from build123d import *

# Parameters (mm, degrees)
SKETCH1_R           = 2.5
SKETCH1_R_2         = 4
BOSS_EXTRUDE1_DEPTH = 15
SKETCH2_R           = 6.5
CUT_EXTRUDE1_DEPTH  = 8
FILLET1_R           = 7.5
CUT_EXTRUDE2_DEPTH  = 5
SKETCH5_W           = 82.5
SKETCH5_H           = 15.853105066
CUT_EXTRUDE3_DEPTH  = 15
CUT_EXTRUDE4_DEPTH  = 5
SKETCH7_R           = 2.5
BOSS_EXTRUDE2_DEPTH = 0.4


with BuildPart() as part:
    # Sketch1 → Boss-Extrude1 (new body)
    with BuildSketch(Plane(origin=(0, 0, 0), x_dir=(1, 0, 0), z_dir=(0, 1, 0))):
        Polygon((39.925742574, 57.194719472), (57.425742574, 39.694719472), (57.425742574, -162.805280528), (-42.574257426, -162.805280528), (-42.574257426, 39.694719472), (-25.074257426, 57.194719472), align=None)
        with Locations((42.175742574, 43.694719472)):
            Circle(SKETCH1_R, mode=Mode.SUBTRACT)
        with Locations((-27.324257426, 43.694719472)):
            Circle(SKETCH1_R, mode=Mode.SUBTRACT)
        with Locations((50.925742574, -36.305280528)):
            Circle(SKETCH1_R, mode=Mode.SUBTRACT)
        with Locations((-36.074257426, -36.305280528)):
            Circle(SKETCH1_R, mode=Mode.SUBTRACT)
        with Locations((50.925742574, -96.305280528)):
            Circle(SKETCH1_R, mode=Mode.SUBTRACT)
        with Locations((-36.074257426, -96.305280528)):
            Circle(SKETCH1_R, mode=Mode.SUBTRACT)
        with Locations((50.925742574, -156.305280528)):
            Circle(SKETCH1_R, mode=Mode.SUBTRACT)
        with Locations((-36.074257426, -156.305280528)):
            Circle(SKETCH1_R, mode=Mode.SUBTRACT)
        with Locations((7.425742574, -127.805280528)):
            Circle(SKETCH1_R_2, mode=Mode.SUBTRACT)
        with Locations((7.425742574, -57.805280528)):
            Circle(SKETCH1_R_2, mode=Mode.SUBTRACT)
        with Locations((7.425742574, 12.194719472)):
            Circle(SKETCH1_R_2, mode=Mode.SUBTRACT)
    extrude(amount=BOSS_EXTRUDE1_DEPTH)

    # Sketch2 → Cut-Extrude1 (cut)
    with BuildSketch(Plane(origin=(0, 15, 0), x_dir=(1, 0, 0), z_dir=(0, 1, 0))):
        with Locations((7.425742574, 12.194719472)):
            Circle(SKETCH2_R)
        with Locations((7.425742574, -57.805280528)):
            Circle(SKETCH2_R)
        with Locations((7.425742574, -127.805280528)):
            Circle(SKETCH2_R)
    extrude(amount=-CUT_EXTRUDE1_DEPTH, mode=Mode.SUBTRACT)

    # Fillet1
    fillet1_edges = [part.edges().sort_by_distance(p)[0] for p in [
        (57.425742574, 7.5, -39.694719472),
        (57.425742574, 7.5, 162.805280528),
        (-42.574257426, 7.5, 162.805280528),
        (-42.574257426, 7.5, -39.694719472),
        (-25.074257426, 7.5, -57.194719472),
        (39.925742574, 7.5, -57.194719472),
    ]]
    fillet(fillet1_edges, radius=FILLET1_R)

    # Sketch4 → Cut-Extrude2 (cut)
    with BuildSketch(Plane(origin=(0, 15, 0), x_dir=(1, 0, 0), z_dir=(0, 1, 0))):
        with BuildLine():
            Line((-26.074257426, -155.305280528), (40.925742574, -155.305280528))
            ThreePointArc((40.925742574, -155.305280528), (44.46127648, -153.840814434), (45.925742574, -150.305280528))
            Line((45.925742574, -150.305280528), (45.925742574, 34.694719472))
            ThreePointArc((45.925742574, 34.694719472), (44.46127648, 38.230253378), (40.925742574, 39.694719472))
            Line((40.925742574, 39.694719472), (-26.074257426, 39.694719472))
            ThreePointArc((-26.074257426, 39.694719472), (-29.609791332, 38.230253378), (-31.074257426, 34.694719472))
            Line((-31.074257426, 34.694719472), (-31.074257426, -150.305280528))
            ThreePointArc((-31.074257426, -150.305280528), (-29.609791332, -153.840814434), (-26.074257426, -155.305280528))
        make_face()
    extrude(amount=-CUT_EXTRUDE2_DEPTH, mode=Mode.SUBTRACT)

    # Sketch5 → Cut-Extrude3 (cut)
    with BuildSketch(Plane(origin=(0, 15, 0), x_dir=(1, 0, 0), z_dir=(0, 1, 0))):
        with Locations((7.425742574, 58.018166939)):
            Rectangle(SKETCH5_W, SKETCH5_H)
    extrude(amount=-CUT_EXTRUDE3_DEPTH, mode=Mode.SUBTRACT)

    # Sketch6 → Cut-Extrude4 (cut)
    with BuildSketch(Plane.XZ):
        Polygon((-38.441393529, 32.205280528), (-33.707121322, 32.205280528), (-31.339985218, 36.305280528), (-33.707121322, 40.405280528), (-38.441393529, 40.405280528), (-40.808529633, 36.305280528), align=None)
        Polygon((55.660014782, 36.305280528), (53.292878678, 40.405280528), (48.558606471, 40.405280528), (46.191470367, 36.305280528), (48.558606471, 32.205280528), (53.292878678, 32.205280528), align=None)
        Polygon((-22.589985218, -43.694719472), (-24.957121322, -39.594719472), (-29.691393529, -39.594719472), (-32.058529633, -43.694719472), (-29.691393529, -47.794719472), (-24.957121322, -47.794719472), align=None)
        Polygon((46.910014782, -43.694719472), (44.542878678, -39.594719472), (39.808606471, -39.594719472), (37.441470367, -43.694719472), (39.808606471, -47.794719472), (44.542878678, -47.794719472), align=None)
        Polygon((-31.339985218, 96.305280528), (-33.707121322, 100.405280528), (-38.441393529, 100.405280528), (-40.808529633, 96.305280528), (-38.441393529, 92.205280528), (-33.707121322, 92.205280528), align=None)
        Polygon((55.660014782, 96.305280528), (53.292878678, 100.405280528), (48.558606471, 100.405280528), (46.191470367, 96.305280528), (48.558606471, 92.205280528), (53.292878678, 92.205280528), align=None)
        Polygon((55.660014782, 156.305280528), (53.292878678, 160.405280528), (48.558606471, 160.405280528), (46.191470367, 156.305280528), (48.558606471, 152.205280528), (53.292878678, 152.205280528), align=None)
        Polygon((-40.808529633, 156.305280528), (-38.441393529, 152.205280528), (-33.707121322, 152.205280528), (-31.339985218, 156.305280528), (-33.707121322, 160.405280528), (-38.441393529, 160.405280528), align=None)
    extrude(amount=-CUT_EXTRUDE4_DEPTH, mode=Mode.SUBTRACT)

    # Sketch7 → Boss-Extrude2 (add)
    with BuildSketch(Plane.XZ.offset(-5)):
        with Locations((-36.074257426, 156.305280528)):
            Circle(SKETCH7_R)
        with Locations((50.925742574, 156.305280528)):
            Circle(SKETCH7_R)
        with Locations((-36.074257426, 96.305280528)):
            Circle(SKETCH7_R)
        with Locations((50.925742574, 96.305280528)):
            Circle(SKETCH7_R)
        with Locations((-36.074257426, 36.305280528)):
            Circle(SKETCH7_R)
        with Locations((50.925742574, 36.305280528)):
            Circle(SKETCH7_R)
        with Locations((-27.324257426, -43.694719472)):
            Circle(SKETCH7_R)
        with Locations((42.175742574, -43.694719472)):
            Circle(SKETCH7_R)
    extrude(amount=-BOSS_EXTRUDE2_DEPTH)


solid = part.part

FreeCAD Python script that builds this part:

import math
import FreeCAD as App
import Part
import Sketcher

V = App.Vector
Q = App.Units.Quantity


def edges_at(feature, points):
    """Names of the edges that pass closest to the given points."""
    edges = feature.Shape.Edges
    near = lambda p: min(range(len(edges)), key=lambda i: edges[i].distToShape(Part.Vertex(*p))[0])
    return sorted({f"Edge{near(p) + 1}" for p in points})

doc = App.newDocument("Part")
body = doc.addObject("PartDesign::Body", "Body")

# Sketch on XZ plane
sketch1 = body.newObject("Sketcher::SketchObject", "Sketch")
sketch1.AttachmentSupport = (doc.getObject("XZ_Plane"), [""])
sketch1.MapMode = "FlatFace"
sketch1.addGeometry([
    Part.LineSegment(V(57.4, -39.7, 0), V(39.9, -57.2, 0)),  # 0
    Part.LineSegment(V(39.9, -57.2, 0), V(-25.1, -57.2, 0)),  # 1
    Part.LineSegment(V(-25.1, -57.2, 0), V(-42.6, -39.7, 0)),  # 2
    Part.LineSegment(V(-42.6, -39.7, 0), V(-42.6, 162.8, 0)),  # 3
    Part.LineSegment(V(-42.6, 162.8, 0), V(57.4, 162.8, 0)),  # 4
    Part.LineSegment(V(57.4, 162.8, 0), V(57.4, -39.7, 0)),  # 5
    Part.Circle(V(50.9, 156.3, 0), V(0, 0, 1), 2.5),  # 6
    Part.Circle(V(7.4, 127.8, 0), V(0, 0, 1), 4),  # 7
    Part.Circle(V(50.9, 96.3, 0), V(0, 0, 1), 2.5),  # 8
    Part.Circle(V(7.4, 57.8, 0), V(0, 0, 1), 4),  # 9
    Part.Circle(V(-36.1, 156.3, 0), V(0, 0, 1), 2.5),  # 10
    Part.Circle(V(-36.1, 96.3, 0), V(0, 0, 1), 2.5),  # 11
    Part.Circle(V(50.9, 36.3, 0), V(0, 0, 1), 2.5),  # 12
    Part.Circle(V(42.2, -43.7, 0), V(0, 0, 1), 2.5),  # 13
    Part.Circle(V(7.4, -12.2, 0), V(0, 0, 1), 4),  # 14
    Part.Circle(V(-36.1, 36.3, 0), V(0, 0, 1), 2.5),  # 15
    Part.Circle(V(-27.3, -43.7, 0), V(0, 0, 1), 2.5),  # 16
], False)
sketch1.addConstraint([
    Sketcher.Constraint("Coincident", 0, 2, 1, 1),
    Sketcher.Constraint("Coincident", 1, 2, 2, 1),
    Sketcher.Constraint("Coincident", 2, 2, 3, 1),
    Sketcher.Constraint("Coincident", 3, 2, 4, 1),
    Sketcher.Constraint("Coincident", 4, 2, 5, 1),
    Sketcher.Constraint("Coincident", 5, 2, 0, 1),
    Sketcher.Constraint("Horizontal", 1),
    Sketcher.Constraint("Vertical", 3),
    Sketcher.Constraint("Horizontal", 4),
    Sketcher.Constraint("Vertical", 5),
    Sketcher.Constraint("Equal", 6, 8),
    Sketcher.Constraint("Equal", 7, 9),
    Sketcher.Constraint("Equal", 8, 10),
    Sketcher.Constraint("Equal", 10, 11),
    Sketcher.Constraint("Equal", 11, 12),
    Sketcher.Constraint("Equal", 12, 13),
    Sketcher.Constraint("Equal", 9, 14),
    Sketcher.Constraint("Equal", 13, 15),
    Sketcher.Constraint("Equal", 15, 16),
    Sketcher.Constraint("Perpendicular", 0, 2),
    Sketcher.Constraint("Horizontal", 6, 3, 10, 3),
    Sketcher.Constraint("Horizontal", 8, 3, 11, 3),
    Sketcher.Constraint("Horizontal", 12, 3, 15, 3),
    Sketcher.Constraint("Horizontal", 13, 3, 16, 3),
    Sketcher.Constraint("Horizontal", 2, 2, 5, 2),
    Sketcher.Constraint("Vertical", 6, 3, 8, 3),
    Sketcher.Constraint("Vertical", 7, 3, 9, 3),
    Sketcher.Constraint("Vertical", 10, 3, 11, 3),
    Sketcher.Constraint("Vertical", 8, 3, 12, 3),
    Sketcher.Constraint("Vertical", 9, 3, 14, 3),
    Sketcher.Constraint("Vertical", 11, 3, 15, 3),
    Sketcher.Constraint("Equal", 0, 2),
    Sketcher.Constraint("Diameter", 6, 5.0),
    Sketcher.Constraint("Diameter", 7, 8.0),
    Sketcher.Constraint("DistanceX", 1, 2, 1, 1, 65.0),
    Sketcher.Constraint("DistanceX", 4, 1, 4, 2, 100.0),
    Sketcher.Constraint("DistanceY", 3, 1, 3, 2, 202.5),
    Sketcher.Constraint("DistanceY", 8, 3, 6, 3, 60.0),
    Sketcher.Constraint("DistanceY", 9, 3, 7, 3, 70.0),
    Sketcher.Constraint("DistanceX", 10, 3, 6, 3, 87.0),
    Sketcher.Constraint("DistanceY", 12, 3, 8, 3, 60.0),
    Sketcher.Constraint("DistanceY", 13, 3, 12, 3, 80.0),
    Sketcher.Constraint("DistanceY", 14, 3, 9, 3, 70.0),
    Sketcher.Constraint("DistanceY", 0, 2, 14, 3, 45.0),
    Sketcher.Constraint("DistanceX", 0, 2, 12, 3, 11.0),
    Sketcher.Constraint("DistanceY", 16, 3, 2, 2, 4.0),
    Sketcher.Constraint("DistanceX", 2, 2, 14, 3, 50.0),
    Sketcher.Constraint("DistanceX", 16, 3, 13, 3, 69.5),
    Sketcher.Constraint("DistanceX", 13, 3, 12, 3, 8.75),
    Sketcher.Constraint("DistanceY", -1, 1, 6, 3, 156.305281),
    Sketcher.Constraint("DistanceX", -1, 1, 6, 3, 50.925743),
])
pad1 = body.newObject("PartDesign::Pad", "Pad")
pad1.Profile = sketch1
pad1.Length = 15
pad1.Reversed = True

# Sketch on XZ plane
sketch2 = body.newObject("Sketcher::SketchObject", "Sketch001")
sketch2.AttachmentSupport = (doc.getObject("XZ_Plane"), [""])
sketch2.MapMode = "FlatFace"
sketch2.AttachmentOffset = App.Placement(V(0, 0, -15), App.Rotation())
sketch2.addGeometry([
    Part.Circle(V(7, -12, 0), V(0, 0, 1), 6),
    Part.Circle(V(7, 58, 0), V(0, 0, 1), 6),
    Part.Circle(V(7, 128, 0), V(0, 0, 1), 6),
], False)
sketch2.addConstraint([
    Sketcher.Constraint("Equal", 0, 1),
    Sketcher.Constraint("Equal", 1, 2),
    Sketcher.Constraint("Vertical", 0, 3, 1, 3),
    Sketcher.Constraint("Vertical", 1, 3, 2, 3),
    Sketcher.Constraint("Diameter", 0, 13.0),
    Sketcher.Constraint("DistanceY", 0, 3, 1, 3, 70.0),
    Sketcher.Constraint("DistanceY", 1, 3, 2, 3, 70.0),
    Sketcher.Constraint("DistanceY", 0, 3, -1, 1, 12.194719),
    Sketcher.Constraint("DistanceX", -1, 1, 0, 3, 7.425743),
])
pocket1 = body.newObject("PartDesign::Pocket", "Pocket")
pocket1.Profile = sketch2
pocket1.Length = 8
pocket1.Reversed = True
doc.recompute()

fillet = body.newObject("PartDesign::Fillet", "Fillet")
fillet.Base = (pocket1, edges_at(pocket1, [
    (57.426, 7.5, -39.695),
    (57.426, 7.5, 162.805),
    (-42.574, 7.5, 162.805),
    (-42.574, 7.5, -39.695),
    (-25.074, 7.5, -57.195),
    (39.926, 7.5, -57.195),
]))
fillet.Radius = 7.5

# Sketch on XZ plane
sketch3 = body.newObject("Sketcher::SketchObject", "Sketch002")
sketch3.AttachmentSupport = (doc.getObject("XZ_Plane"), [""])
sketch3.MapMode = "FlatFace"
sketch3.AttachmentOffset = App.Placement(V(0, 0, -15), App.Rotation())
sketch3.addGeometry([
    Part.LineSegment(V(-26, 155, 0), V(41, 155, 0)),  # 0
    Part.ArcOfCircle(Part.Circle(V(41, 150, 0), V(0, 0, 1), 5), math.radians(0), math.radians(90)),  # 1
    Part.LineSegment(V(46, 150, 0), V(46, -35, 0)),  # 2
    Part.ArcOfCircle(Part.Circle(V(41, -35, 0), V(0, 0, 1), 5), math.radians(-90), math.radians(0)),  # 3
    Part.LineSegment(V(41, -40, 0), V(-26, -40, 0)),  # 4
    Part.ArcOfCircle(Part.Circle(V(-26, -35, 0), V(0, 0, 1), 5), math.radians(180), math.radians(270)),  # 5
    Part.LineSegment(V(-31, -35, 0), V(-31, 150, 0)),  # 6
    Part.ArcOfCircle(Part.Circle(V(-26, 150, 0), V(0, 0, 1), 5), math.radians(90), math.radians(180)),  # 7
], False)
sketch3.addConstraint([
    Sketcher.Constraint("Tangent", 0, 2, 1, 2),
    Sketcher.Constraint("Tangent", 1, 1, 2, 1),
    Sketcher.Constraint("Tangent", 2, 2, 3, 2),
    Sketcher.Constraint("Tangent", 3, 1, 4, 1),
    Sketcher.Constraint("Tangent", 4, 2, 5, 2),
    Sketcher.Constraint("Tangent", 5, 1, 6, 1),
    Sketcher.Constraint("Tangent", 6, 2, 7, 2),
    Sketcher.Constraint("Tangent", 7, 1, 0, 1),
    Sketcher.Constraint("Horizontal", 0),
    Sketcher.Constraint("Vertical", 2),
    Sketcher.Constraint("Horizontal", 4),
    Sketcher.Constraint("Vertical", 6),
    Sketcher.Constraint("Equal", 1, 3),
    Sketcher.Constraint("Equal", 3, 5),
    Sketcher.Constraint("Equal", 5, 7),
    Sketcher.Constraint("Radius", 1, 5.0),
    Sketcher.Constraint("DistanceX", 0, 1, 0, 2, 67.0),
    Sketcher.Constraint("DistanceY", 2, 2, 2, 1, 185.0),
    Sketcher.Constraint("DistanceY", -1, 1, 1, 3, 150.305281),
    Sketcher.Constraint("DistanceX", -1, 1, 1, 3, 40.925743),
])
pocket2 = body.newObject("PartDesign::Pocket", "Pocket001")
pocket2.Profile = sketch3
pocket2.Length = 5
pocket2.Reversed = True

# Sketch on XZ plane
sketch4 = body.newObject("Sketcher::SketchObject", "Sketch003")
sketch4.AttachmentSupport = (doc.getObject("XZ_Plane"), [""])
sketch4.MapMode = "FlatFace"
sketch4.AttachmentOffset = App.Placement(V(0, 0, -15), App.Rotation())
sketch4.addGeometry([
    Part.LineSegment(V(-34, -66, 0), V(-34, -50, 0)),
    Part.LineSegment(V(-34, -50, 0), V(49, -50, 0)),
    Part.LineSegment(V(49, -50, 0), V(49, -66, 0)),
    Part.LineSegment(V(49, -66, 0), V(-34, -66, 0)),
], False)
sketch4.addConstraint([
    Sketcher.Constraint("Coincident", 0, 2, 1, 1),
    Sketcher.Constraint("Coincident", 1, 2, 2, 1),
    Sketcher.Constraint("Coincident", 2, 2, 3, 1),
    Sketcher.Constraint("Coincident", 3, 2, 0, 1),
    Sketcher.Constraint("Vertical", 0),
    Sketcher.Constraint("Horizontal", 1),
    Sketcher.Constraint("Vertical", 2),
    Sketcher.Constraint("Horizontal", 3),
    Sketcher.Constraint("DistanceX", 1, 1, 1, 2, 82.5),
    Sketcher.Constraint("DistanceY", 0, 1, 0, 2, 15.853105),
    Sketcher.Constraint("DistanceY", 2, 2, -1, 1, 65.944719),
    Sketcher.Constraint("DistanceX", 0, 2, -1, 1, 33.824257),
])
pocket3 = body.newObject("PartDesign::Pocket", "Pocket002")
pocket3.Profile = sketch4
pocket3.Length = 15
pocket3.Reversed = True

# Sketch on XZ plane
sketch5 = body.newObject("Sketcher::SketchObject", "Sketch004")
sketch5.AttachmentSupport = (doc.getObject("XZ_Plane"), [""])
sketch5.MapMode = "FlatFace"
sketch5.addGeometry([
    Part.LineSegment(V(-38.4, 32.2, 0), V(-33.7, 32.2, 0)),  # 0
    Part.LineSegment(V(-33.7, 32.2, 0), V(-31.3, 36.3, 0)),  # 1
    Part.LineSegment(V(-31.3, 36.3, 0), V(-33.7, 40.4, 0)),  # 2
    Part.LineSegment(V(-33.7, 40.4, 0), V(-38.4, 40.4, 0)),  # 3
    Part.LineSegment(V(-38.4, 40.4, 0), V(-40.8, 36.3, 0)),  # 4
    Part.LineSegment(V(-40.8, 36.3, 0), V(-38.4, 32.2, 0)),  # 5
    Part.LineSegment(V(55.7, 36.3, 0), V(53.3, 40.4, 0)),  # 6
    Part.LineSegment(V(53.3, 40.4, 0), V(48.6, 40.4, 0)),  # 7
    Part.LineSegment(V(48.6, 40.4, 0), V(46.2, 36.3, 0)),  # 8
    Part.LineSegment(V(46.2, 36.3, 0), V(48.6, 32.2, 0)),  # 9
    Part.LineSegment(V(48.6, 32.2, 0), V(53.3, 32.2, 0)),  # 10
    Part.LineSegment(V(53.3, 32.2, 0), V(55.7, 36.3, 0)),  # 11
    Part.LineSegment(V(-22.6, -43.7, 0), V(-25, -39.6, 0)),  # 12
    Part.LineSegment(V(-25, -39.6, 0), V(-29.7, -39.6, 0)),  # 13
    Part.LineSegment(V(-29.7, -39.6, 0), V(-32.1, -43.7, 0)),  # 14
    Part.LineSegment(V(-32.1, -43.7, 0), V(-29.7, -47.8, 0)),  # 15
    Part.LineSegment(V(-29.7, -47.8, 0), V(-25, -47.8, 0)),  # 16
    Part.LineSegment(V(-25, -47.8, 0), V(-22.6, -43.7, 0)),  # 17
    Part.LineSegment(V(46.9, -43.7, 0), V(44.5, -39.6, 0)),  # 18
    Part.LineSegment(V(44.5, -39.6, 0), V(39.8, -39.6, 0)),  # 19
    Part.LineSegment(V(39.8, -39.6, 0), V(37.4, -43.7, 0)),  # 20
    Part.LineSegment(V(37.4, -43.7, 0), V(39.8, -47.8, 0)),  # 21
    Part.LineSegment(V(39.8, -47.8, 0), V(44.5, -47.8, 0)),  # 22
    Part.LineSegment(V(44.5, -47.8, 0), V(46.9, -43.7, 0)),  # 23
    Part.LineSegment(V(-31.3, 96.3, 0), V(-33.7, 100.4, 0)),  # 24
    Part.LineSegment(V(-33.7, 100.4, 0), V(-38.4, 100.4, 0)),  # 25
    Part.LineSegment(V(-38.4, 100.4, 0), V(-40.8, 96.3, 0)),  # 26
    Part.LineSegment(V(-40.8, 96.3, 0), V(-38.4, 92.2, 0)),  # 27
    Part.LineSegment(V(-38.4, 92.2, 0), V(-33.7, 92.2, 0)),  # 28
    Part.LineSegment(V(-33.7, 92.2, 0), V(-31.3, 96.3, 0)),  # 29
    Part.LineSegment(V(55.7, 96.3, 0), V(53.3, 100.4, 0)),  # 30
    Part.LineSegment(V(53.3, 100.4, 0), V(48.6, 100.4, 0)),  # 31
    Part.LineSegment(V(48.6, 100.4, 0), V(46.2, 96.3, 0)),  # 32
    Part.LineSegment(V(46.2, 96.3, 0), V(48.6, 92.2, 0)),  # 33
    Part.LineSegment(V(48.6, 92.2, 0), V(53.3, 92.2, 0)),  # 34
    Part.LineSegment(V(53.3, 92.2, 0), V(55.7, 96.3, 0)),  # 35
    Part.LineSegment(V(55.7, 156.3, 0), V(53.3, 160.4, 0)),  # 36
    Part.LineSegment(V(53.3, 160.4, 0), V(48.6, 160.4, 0)),  # 37
    Part.LineSegment(V(48.6, 160.4, 0), V(46.2, 156.3, 0)),  # 38
    Part.LineSegment(V(46.2, 156.3, 0), V(48.6, 152.2, 0)),  # 39
    Part.LineSegment(V(48.6, 152.2, 0), V(53.3, 152.2, 0)),  # 40
    Part.LineSegment(V(53.3, 152.2, 0), V(55.7, 156.3, 0)),  # 41
    Part.LineSegment(V(-40.8, 156.3, 0), V(-38.4, 152.2, 0)),  # 42
    Part.LineSegment(V(-38.4, 152.2, 0), V(-33.7, 152.2, 0)),  # 43
    Part.LineSegment(V(-33.7, 152.2, 0), V(-31.3, 156.3, 0)),  # 44
    Part.LineSegment(V(-31.3, 156.3, 0), V(-33.7, 160.4, 0)),  # 45
    Part.LineSegment(V(-33.7, 160.4, 0), V(-38.4, 160.4, 0)),  # 46
    Part.LineSegment(V(-38.4, 160.4, 0), V(-40.8, 156.3, 0)),  # 47
], False)
sketch5.addConstraint([
    Sketcher.Constraint("Coincident", 0, 2, 1, 1),
    Sketcher.Constraint("Coincident", 1, 2, 2, 1),
    Sketcher.Constraint("Coincident", 2, 2, 3, 1),
    Sketcher.Constraint("Coincident", 3, 2, 4, 1),
    Sketcher.Constraint("Coincident", 4, 2, 5, 1),
    Sketcher.Constraint("Coincident", 5, 2, 0, 1),
    Sketcher.Constraint("Coincident", 6, 2, 7, 1),
    Sketcher.Constraint("Coincident", 7, 2, 8, 1),
    Sketcher.Constraint("Coincident", 8, 2, 9, 1),
    Sketcher.Constraint("Coincident", 9, 2, 10, 1),
    Sketcher.Constraint("Coincident", 10, 2, 11, 1),
    Sketcher.Constraint("Coincident", 11, 2, 6, 1),
    Sketcher.Constraint("Coincident", 12, 2, 13, 1),
    Sketcher.Constraint("Coincident", 13, 2, 14, 1),
    Sketcher.Constraint("Coincident", 14, 2, 15, 1),
    Sketcher.Constraint("Coincident", 15, 2, 16, 1),
    Sketcher.Constraint("Coincident", 16, 2, 17, 1),
    Sketcher.Constraint("Coincident", 17, 2, 12, 1),
    Sketcher.Constraint("Coincident", 18, 2, 19, 1),
    Sketcher.Constraint("Coincident", 19, 2, 20, 1),
    Sketcher.Constraint("Coincident", 20, 2, 21, 1),
    Sketcher.Constraint("Coincident", 21, 2, 22, 1),
    Sketcher.Constraint("Coincident", 22, 2, 23, 1),
    Sketcher.Constraint("Coincident", 23, 2, 18, 1),
    Sketcher.Constraint("Coincident", 24, 2, 25, 1),
    Sketcher.Constraint("Coincident", 25, 2, 26, 1),
    Sketcher.Constraint("Coincident", 26, 2, 27, 1),
    Sketcher.Constraint("Coincident", 27, 2, 28, 1),
    Sketcher.Constraint("Coincident", 28, 2, 29, 1),
    Sketcher.Constraint("Coincident", 29, 2, 24, 1),
    Sketcher.Constraint("Coincident", 30, 2, 31, 1),
    Sketcher.Constraint("Coincident", 31, 2, 32, 1),
    Sketcher.Constraint("Coincident", 32, 2, 33, 1),
    Sketcher.Constraint("Coincident", 33, 2, 34, 1),
    Sketcher.Constraint("Coincident", 34, 2, 35, 1),
    Sketcher.Constraint("Coincident", 35, 2, 30, 1),
    Sketcher.Constraint("Coincident", 36, 2, 37, 1),
    Sketcher.Constraint("Coincident", 37, 2, 38, 1),
    Sketcher.Constraint("Coincident", 38, 2, 39, 1),
    Sketcher.Constraint("Coincident", 39, 2, 40, 1),
    Sketcher.Constraint("Coincident", 40, 2, 41, 1),
    Sketcher.Constraint("Coincident", 41, 2, 36, 1),
    Sketcher.Constraint("Coincident", 42, 2, 43, 1),
    Sketcher.Constraint("Coincident", 43, 2, 44, 1),
    Sketcher.Constraint("Coincident", 44, 2, 45, 1),
    Sketcher.Constraint("Coincident", 45, 2, 46, 1),
    Sketcher.Constraint("Coincident", 46, 2, 47, 1),
    Sketcher.Constraint("Coincident", 47, 2, 42, 1),
    Sketcher.Constraint("Horizontal", 0),
    Sketcher.Constraint("Horizontal", 3),
    Sketcher.Constraint("Horizontal", 7),
    Sketcher.Constraint("Horizontal", 10),
    Sketcher.Constraint("Horizontal", 13),
    Sketcher.Constraint("Horizontal", 16),
    Sketcher.Constraint("Horizontal", 19),
    Sketcher.Constraint("Horizontal", 22),
    Sketcher.Constraint("Horizontal", 25),
    Sketcher.Constraint("Horizontal", 28),
    Sketcher.Constraint("Horizontal", 31),
    Sketcher.Constraint("Horizontal", 34),
    Sketcher.Constraint("Horizontal", 37),
    Sketcher.Constraint("Horizontal", 40),
    Sketcher.Constraint("Horizontal", 43),
    Sketcher.Constraint("Horizontal", 46),
    Sketcher.Constraint("Parallel", 1, 4),
    Sketcher.Constraint("Parallel", 2, 5),
    Sketcher.Constraint("Parallel", 5, 6),
    Sketcher.Constraint("Parallel", 4, 8),
    Sketcher.Constraint("Parallel", 6, 9),
    Sketcher.Constraint("Parallel", 8, 11),
    Sketcher.Constraint("Parallel", 9, 12),
    Sketcher.Constraint("Parallel", 11, 14),
    Sketcher.Constraint("Parallel", 12, 15),
    Sketcher.Constraint("Parallel", 14, 17),
    Sketcher.Constraint("Parallel", 15, 18),
    Sketcher.Constraint("Parallel", 17, 20),
    Sketcher.Constraint("Parallel", 18, 21),
    Sketcher.Constraint("Parallel", 20, 23),
    Sketcher.Constraint("Parallel", 21, 24),
    Sketcher.Constraint("Parallel", 23, 26),
    Sketcher.Constraint("Parallel", 24, 27),
    Sketcher.Constraint("Parallel", 26, 29),
    Sketcher.Constraint("Parallel", 27, 30),
    Sketcher.Constraint("Parallel", 29, 32),
    Sketcher.Constraint("Parallel", 30, 33),
    Sketcher.Constraint("Parallel", 32, 35),
    Sketcher.Constraint("Parallel", 33, 36),
    Sketcher.Constraint("Parallel", 35, 38),
    Sketcher.Constraint("Parallel", 36, 39),
    Sketcher.Constraint("Parallel", 38, 41),
    Sketcher.Constraint("Parallel", 39, 42),
    Sketcher.Constraint("Parallel", 41, 44),
    Sketcher.Constraint("Parallel", 42, 45),
    Sketcher.Constraint("Parallel", 44, 47),
    Sketcher.Constraint("Horizontal", 1, 2, 4, 2),
    Sketcher.Constraint("Horizontal", 3, 2, 6, 2),
    Sketcher.Constraint("Horizontal", 4, 2, 8, 2),
    Sketcher.Constraint("Horizontal", 5, 2, 9, 2),
    Sketcher.Constraint("Horizontal", 8, 2, 11, 2),
    Sketcher.Constraint("Horizontal", 14, 2, 17, 2),
    Sketcher.Constraint("Horizontal", 13, 2, 18, 2),
    Sketcher.Constraint("Horizontal", 17, 2, 20, 2),
    Sketcher.Constraint("Horizontal", 16, 2, 21, 2),
    Sketcher.Constraint("Horizontal", 20, 2, 23, 2),
    Sketcher.Constraint("Horizontal", 26, 2, 29, 2),
    Sketcher.Constraint("Horizontal", 25, 2, 30, 2),
    Sketcher.Constraint("Horizontal", 29, 2, 32, 2),
    Sketcher.Constraint("Horizontal", 28, 2, 33, 2),
    Sketcher.Constraint("Horizontal", 32, 2, 35, 2),
    Sketcher.Constraint("Horizontal", 38, 2, 41, 2),
    Sketcher.Constraint("Horizontal", 40, 2, 42, 2),
    Sketcher.Constraint("Horizontal", 41, 2, 44, 2),
    Sketcher.Constraint("Horizontal", 37, 2, 45, 2),
    Sketcher.Constraint("Horizontal", 44, 2, 47, 2),
    Sketcher.Constraint("Vertical", 0, 2, 2, 2),
    Sketcher.Constraint("Vertical", 3, 2, 5, 2),
    Sketcher.Constraint("Vertical", 13, 2, 15, 2),
    Sketcher.Constraint("Vertical", 2, 2, 24, 2),
    Sketcher.Constraint("Vertical", 5, 2, 25, 2),
    Sketcher.Constraint("Vertical", 4, 2, 26, 2),
    Sketcher.Constraint("Vertical", 25, 2, 27, 2),
    Sketcher.Constraint("Vertical", 10, 2, 30, 2),
    Sketcher.Constraint("Vertical", 9, 2, 31, 2),
    Sketcher.Constraint("Vertical", 34, 2, 36, 2),
    Sketcher.Constraint("Vertical", 33, 2, 37, 2),
    Sketcher.Constraint("Vertical", 32, 2, 38, 2),
    Sketcher.Constraint("Vertical", 37, 2, 39, 2),
    Sketcher.Constraint("Vertical", 27, 2, 42, 2),
    Sketcher.Constraint("Vertical", 28, 2, 43, 2),
    Sketcher.Constraint("Equal", 3, 7),
    Sketcher.Constraint("Equal", 10, 13),
    Sketcher.Constraint("Equal", 16, 19),
    Sketcher.Constraint("Equal", 11, 12),
    Sketcher.Constraint("Angle", 1, Q("60 deg")),
    Sketcher.Constraint("DistanceX", 2, 2, 6, 2, 87.0),
    Sketcher.Constraint("DistanceY", 12, 2, 2, 2, 80.0),
    Sketcher.Constraint("DistanceY", 2, 2, 24, 2, 60.0),
    Sketcher.Constraint("DistanceY", 30, 2, 36, 2, 60.0),
    Sketcher.Constraint("DistanceY", 0, 2, 1, 2, 4.1),
    Sketcher.Constraint("DistanceX", 12, 2, 18, 2, 69.5),
    Sketcher.Constraint("DistanceX", 0, 2, 12, 2, 8.75),
    Sketcher.Constraint("DistanceX", 0, 1, 0, 2, 4.734272),
    Sketcher.Constraint("DistanceX", 0, 2, -1, 1, 33.707121),
    Sketcher.Constraint("DistanceY", -1, 1, 0, 2, 32.205281),
])
pocket4 = body.newObject("PartDesign::Pocket", "Pocket003")
pocket4.Profile = sketch5
pocket4.Length = 5

# Sketch on XZ plane
sketch6 = body.newObject("Sketcher::SketchObject", "Sketch005")
sketch6.AttachmentSupport = (doc.getObject("XZ_Plane"), [""])
sketch6.MapMode = "FlatFace"
sketch6.AttachmentOffset = App.Placement(V(0, 0, -5), App.Rotation())
sketch6.addGeometry([
    Part.Circle(V(-36.1, 156.3, 0), V(0, 0, 1), 2.5),  # 0
    Part.Circle(V(50.9, 156.3, 0), V(0, 0, 1), 2.5),  # 1
    Part.Circle(V(-36.1, 96.3, 0), V(0, 0, 1), 2.5),  # 2
    Part.Circle(V(50.9, 96.3, 0), V(0, 0, 1), 2.5),  # 3
    Part.Circle(V(-36.1, 36.3, 0), V(0, 0, 1), 2.5),  # 4
    Part.Circle(V(50.9, 36.3, 0), V(0, 0, 1), 2.5),  # 5
    Part.Circle(V(-27.3, -43.7, 0), V(0, 0, 1), 2.5),  # 6
    Part.Circle(V(42.2, -43.7, 0), V(0, 0, 1), 2.5),  # 7
], False)
sketch6.addConstraint([
    Sketcher.Constraint("Equal", 0, 1),
    Sketcher.Constraint("Equal", 1, 2),
    Sketcher.Constraint("Equal", 2, 3),
    Sketcher.Constraint("Equal", 3, 4),
    Sketcher.Constraint("Equal", 4, 5),
    Sketcher.Constraint("Equal", 5, 6),
    Sketcher.Constraint("Equal", 6, 7),
    Sketcher.Constraint("Horizontal", 0, 3, 1, 3),
    Sketcher.Constraint("Horizontal", 2, 3, 3, 3),
    Sketcher.Constraint("Horizontal", 4, 3, 5, 3),
    Sketcher.Constraint("Horizontal", 6, 3, 7, 3),
    Sketcher.Constraint("Vertical", 0, 3, 2, 3),
    Sketcher.Constraint("Vertical", 1, 3, 3, 3),
    Sketcher.Constraint("Vertical", 2, 3, 4, 3),
    Sketcher.Constraint("Vertical", 3, 3, 5, 3),
    Sketcher.Constraint("Diameter", 0, 5.0),
    Sketcher.Constraint("DistanceX", 0, 3, 1, 3, 87.0),
    Sketcher.Constraint("DistanceY", 2, 3, 0, 3, 60.0),
    Sketcher.Constraint("DistanceY", 4, 3, 2, 3, 60.0),
    Sketcher.Constraint("DistanceY", 6, 3, 4, 3, 80.0),
    Sketcher.Constraint("DistanceX", 6, 3, 7, 3, 69.5),
    Sketcher.Constraint("DistanceX", 4, 3, 6, 3, 8.75),
    Sketcher.Constraint("DistanceY", -1, 1, 0, 3, 156.305281),
    Sketcher.Constraint("DistanceX", 0, 3, -1, 1, 36.074257),
])
pad2 = body.newObject("PartDesign::Pad", "Pad001")
pad2.Profile = sketch6
pad2.Length = 0.4
pad2.Reversed = True

doc.recompute()
